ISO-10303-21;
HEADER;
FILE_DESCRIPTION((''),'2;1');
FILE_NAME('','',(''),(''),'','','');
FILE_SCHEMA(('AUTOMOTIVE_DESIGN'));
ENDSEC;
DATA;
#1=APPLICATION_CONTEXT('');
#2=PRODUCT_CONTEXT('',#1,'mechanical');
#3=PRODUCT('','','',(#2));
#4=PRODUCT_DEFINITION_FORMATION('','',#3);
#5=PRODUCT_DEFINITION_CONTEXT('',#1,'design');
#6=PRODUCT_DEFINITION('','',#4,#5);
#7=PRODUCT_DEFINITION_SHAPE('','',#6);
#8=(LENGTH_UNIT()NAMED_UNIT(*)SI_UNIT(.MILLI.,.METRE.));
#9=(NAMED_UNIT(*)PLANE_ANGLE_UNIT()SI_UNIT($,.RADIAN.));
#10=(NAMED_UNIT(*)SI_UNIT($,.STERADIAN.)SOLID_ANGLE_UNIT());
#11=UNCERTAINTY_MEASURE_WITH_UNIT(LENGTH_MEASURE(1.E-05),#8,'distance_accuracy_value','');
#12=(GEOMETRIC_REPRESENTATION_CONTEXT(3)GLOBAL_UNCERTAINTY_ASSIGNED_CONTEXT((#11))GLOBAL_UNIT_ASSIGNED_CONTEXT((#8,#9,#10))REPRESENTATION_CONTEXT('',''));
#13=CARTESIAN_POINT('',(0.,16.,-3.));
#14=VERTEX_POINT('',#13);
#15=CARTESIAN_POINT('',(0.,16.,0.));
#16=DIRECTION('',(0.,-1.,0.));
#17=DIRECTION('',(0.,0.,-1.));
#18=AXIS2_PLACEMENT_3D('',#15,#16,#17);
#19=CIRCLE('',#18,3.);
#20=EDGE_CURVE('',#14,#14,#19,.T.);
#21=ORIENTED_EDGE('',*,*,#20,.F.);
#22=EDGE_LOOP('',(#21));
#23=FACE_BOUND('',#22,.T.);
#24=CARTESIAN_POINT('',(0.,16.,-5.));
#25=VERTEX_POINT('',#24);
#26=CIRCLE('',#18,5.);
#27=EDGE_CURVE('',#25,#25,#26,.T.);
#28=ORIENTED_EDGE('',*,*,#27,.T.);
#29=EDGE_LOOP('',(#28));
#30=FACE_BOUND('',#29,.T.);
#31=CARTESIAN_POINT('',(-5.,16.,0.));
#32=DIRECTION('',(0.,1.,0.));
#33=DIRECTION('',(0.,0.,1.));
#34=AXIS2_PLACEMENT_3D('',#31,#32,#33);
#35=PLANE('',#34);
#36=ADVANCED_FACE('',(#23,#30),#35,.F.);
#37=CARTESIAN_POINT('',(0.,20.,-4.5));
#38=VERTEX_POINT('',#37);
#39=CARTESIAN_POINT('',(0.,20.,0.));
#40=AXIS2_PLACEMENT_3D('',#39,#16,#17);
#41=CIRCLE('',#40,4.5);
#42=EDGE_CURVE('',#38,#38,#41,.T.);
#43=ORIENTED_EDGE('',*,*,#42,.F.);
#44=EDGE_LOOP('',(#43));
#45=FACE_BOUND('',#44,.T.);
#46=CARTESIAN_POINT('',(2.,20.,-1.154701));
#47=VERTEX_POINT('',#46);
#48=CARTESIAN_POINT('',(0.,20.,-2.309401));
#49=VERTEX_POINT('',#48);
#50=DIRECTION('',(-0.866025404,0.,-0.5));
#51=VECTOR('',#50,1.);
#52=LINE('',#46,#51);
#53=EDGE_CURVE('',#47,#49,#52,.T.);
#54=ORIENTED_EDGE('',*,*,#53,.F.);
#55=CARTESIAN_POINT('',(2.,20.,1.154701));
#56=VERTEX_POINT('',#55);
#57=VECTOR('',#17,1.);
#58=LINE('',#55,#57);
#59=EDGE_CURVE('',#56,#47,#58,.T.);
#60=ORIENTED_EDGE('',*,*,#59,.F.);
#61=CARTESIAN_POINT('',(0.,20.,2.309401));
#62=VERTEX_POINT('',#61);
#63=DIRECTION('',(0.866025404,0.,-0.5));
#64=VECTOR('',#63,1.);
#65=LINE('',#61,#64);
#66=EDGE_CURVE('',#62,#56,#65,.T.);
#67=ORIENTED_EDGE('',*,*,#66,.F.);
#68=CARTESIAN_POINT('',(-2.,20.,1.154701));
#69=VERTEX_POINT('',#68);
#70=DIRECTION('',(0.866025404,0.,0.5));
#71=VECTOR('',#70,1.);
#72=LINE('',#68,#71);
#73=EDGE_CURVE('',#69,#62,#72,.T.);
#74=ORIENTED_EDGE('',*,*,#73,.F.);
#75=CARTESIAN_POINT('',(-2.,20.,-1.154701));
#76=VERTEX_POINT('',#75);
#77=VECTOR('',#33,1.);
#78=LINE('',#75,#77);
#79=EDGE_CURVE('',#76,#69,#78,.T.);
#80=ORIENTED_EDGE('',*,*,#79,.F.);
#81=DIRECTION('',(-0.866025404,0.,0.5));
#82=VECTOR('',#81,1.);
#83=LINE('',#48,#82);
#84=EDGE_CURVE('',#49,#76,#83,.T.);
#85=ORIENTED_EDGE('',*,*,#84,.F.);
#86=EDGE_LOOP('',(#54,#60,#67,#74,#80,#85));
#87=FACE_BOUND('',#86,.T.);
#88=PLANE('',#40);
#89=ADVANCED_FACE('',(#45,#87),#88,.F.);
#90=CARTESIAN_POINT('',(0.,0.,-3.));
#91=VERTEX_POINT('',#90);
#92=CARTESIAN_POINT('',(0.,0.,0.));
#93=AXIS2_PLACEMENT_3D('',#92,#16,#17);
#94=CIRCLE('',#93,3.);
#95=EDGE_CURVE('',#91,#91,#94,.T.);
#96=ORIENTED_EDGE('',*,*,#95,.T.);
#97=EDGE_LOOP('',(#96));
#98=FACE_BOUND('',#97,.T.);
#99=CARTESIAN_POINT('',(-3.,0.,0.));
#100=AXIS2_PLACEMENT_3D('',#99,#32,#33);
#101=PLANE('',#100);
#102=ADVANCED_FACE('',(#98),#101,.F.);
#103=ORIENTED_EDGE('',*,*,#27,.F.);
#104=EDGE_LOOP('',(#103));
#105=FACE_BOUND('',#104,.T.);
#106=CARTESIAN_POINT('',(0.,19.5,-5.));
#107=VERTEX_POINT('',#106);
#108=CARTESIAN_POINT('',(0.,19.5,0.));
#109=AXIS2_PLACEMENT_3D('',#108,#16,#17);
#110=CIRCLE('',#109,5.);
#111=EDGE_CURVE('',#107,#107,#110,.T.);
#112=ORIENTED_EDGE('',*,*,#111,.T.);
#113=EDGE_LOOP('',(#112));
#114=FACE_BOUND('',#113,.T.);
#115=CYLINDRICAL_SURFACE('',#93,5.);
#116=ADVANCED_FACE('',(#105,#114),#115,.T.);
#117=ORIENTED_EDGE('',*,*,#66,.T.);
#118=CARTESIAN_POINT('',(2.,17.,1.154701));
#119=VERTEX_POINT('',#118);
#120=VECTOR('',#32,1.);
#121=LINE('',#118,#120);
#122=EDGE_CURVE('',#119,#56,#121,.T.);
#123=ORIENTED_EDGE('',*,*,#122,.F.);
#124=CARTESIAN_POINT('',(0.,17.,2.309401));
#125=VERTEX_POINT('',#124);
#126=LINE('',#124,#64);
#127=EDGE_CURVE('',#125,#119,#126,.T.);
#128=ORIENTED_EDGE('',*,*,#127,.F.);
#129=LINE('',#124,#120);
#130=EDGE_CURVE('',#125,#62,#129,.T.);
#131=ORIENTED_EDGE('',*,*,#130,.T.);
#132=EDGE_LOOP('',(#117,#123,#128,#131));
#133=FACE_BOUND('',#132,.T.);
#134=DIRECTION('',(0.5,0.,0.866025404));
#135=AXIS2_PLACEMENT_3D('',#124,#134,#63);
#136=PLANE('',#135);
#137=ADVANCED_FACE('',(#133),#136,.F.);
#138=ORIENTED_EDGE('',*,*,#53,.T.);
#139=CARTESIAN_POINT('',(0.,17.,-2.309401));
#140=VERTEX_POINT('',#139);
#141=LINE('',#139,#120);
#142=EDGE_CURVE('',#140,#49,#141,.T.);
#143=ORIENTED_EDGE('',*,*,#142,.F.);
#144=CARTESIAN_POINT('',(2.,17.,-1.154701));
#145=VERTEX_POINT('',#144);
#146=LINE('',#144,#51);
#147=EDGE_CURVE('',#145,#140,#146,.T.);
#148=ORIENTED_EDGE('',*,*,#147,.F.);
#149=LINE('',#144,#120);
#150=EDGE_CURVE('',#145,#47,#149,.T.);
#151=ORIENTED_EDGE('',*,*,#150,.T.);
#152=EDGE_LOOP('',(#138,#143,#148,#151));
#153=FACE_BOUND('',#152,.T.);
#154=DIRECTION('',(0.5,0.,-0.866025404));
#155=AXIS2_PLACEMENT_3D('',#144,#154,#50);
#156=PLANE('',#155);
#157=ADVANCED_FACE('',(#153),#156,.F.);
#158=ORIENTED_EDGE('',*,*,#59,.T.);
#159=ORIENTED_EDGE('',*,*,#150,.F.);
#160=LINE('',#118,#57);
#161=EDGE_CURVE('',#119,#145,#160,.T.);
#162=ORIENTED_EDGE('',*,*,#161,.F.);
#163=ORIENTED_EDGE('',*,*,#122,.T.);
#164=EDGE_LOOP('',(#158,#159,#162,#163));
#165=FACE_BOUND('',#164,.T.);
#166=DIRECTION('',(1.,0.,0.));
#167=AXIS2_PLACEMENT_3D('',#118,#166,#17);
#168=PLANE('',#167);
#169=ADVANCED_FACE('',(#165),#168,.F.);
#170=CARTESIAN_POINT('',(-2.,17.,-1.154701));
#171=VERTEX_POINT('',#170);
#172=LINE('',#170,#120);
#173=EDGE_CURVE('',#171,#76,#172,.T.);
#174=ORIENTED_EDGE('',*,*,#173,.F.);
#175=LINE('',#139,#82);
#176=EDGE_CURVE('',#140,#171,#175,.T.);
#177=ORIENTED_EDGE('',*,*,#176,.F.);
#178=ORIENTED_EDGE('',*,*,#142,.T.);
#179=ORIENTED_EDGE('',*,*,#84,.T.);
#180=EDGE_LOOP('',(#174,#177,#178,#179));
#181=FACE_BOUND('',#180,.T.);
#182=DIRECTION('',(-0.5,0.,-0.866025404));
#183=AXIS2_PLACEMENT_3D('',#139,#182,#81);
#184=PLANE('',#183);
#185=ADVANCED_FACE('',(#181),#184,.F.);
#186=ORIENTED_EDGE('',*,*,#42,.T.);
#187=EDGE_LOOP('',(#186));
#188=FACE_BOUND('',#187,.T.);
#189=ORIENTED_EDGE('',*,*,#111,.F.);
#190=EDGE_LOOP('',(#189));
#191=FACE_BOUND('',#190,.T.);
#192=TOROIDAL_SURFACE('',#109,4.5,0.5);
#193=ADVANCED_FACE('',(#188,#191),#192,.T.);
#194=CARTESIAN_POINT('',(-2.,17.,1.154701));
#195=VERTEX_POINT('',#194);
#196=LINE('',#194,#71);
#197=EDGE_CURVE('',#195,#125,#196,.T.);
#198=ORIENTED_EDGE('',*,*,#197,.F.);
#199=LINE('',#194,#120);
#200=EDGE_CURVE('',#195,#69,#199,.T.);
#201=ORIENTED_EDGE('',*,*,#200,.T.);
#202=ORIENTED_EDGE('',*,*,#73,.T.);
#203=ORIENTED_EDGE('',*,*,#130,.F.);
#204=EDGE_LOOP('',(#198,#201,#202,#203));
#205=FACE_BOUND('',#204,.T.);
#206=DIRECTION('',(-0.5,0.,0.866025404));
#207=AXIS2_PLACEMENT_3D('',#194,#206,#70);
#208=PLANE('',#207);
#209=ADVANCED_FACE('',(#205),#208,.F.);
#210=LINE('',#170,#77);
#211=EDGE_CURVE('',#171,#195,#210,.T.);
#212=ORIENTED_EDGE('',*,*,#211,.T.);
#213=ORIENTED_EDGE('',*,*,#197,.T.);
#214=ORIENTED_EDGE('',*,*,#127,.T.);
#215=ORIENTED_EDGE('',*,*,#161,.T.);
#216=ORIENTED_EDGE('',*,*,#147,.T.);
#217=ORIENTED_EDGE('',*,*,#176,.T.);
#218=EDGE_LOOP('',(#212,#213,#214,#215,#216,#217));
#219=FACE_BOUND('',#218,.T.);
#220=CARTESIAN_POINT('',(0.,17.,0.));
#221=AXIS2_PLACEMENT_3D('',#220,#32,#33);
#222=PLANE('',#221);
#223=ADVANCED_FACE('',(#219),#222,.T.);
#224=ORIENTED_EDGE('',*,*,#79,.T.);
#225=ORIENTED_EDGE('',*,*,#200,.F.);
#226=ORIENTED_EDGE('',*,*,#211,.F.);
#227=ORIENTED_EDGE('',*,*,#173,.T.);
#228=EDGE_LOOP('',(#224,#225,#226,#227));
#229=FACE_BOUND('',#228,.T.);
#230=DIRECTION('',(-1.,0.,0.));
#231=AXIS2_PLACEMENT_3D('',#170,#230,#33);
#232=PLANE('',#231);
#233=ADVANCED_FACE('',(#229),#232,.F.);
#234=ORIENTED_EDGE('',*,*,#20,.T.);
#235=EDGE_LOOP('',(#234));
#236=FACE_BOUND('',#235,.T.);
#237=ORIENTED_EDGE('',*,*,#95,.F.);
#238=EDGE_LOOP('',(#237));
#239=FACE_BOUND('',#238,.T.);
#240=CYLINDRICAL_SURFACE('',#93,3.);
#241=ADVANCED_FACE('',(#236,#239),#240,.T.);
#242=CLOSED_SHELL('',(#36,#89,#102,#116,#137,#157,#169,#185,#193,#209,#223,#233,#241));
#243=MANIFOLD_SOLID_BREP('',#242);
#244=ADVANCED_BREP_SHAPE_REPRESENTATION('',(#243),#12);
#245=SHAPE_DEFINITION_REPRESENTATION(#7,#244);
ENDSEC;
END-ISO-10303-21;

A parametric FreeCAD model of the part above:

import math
import FreeCAD as App
import Part
import Sketcher
from FreeCAD import Vector
Q = App.Units.Quantity


def add_polygon(sketch, points):
    """Adds a closed chain of lines whose ends are joined by coincident constraints."""
    first, n = sketch.GeometryCount, len(points)
    for a, b in zip(points, points[1:] + points[:1]):
        sketch.addGeometry(Part.LineSegment(App.Vector(*a, 0), App.Vector(*b, 0)), False)
    for i in range(n):
        sketch.addConstraint(Sketcher.Constraint("Coincident", first + i, 2, first + (i + 1) % n, 1))

doc = App.newDocument("Part")
body = doc.addObject("PartDesign::Body", "Body")

sketch1 = doc.addObject("Sketcher::SketchObject", "Sketch")
body.addObject(sketch1)
sketch1.AttachmentSupport = (doc.XY_Plane, [""])
sketch1.MapMode = "FlatFace"
sketch1.addGeometry([
    Part.LineSegment(Vector(0, 20, 0), Vector(-4.5, 20, 0)),
    Part.ArcOfCircle(Part.Circle(Vector(-4.5, 19.5, 0), Vector(0, 0, 1), 0.5), math.radians(90), math.radians(180)),
    Part.LineSegment(Vector(-5, 19.5, 0), Vector(-5, 16, 0)),
    Part.LineSegment(Vector(-5, 16, 0), Vector(-3, 16, 0)),
    Part.LineSegment(Vector(-3, 16, 0), Vector(-3, 0, 0)),
    Part.LineSegment(Vector(-3, 0, 0), Vector(0, 0, 0)),
    Part.LineSegment(Vector(0, 0, 0), Vector(0, 20, 0)),
], False)
sketch1.addConstraint([
    Sketcher.Constraint("Tangent", 0, 2, 1, 1),
    Sketcher.Constraint("Tangent", 1, 2, 2, 1),
    Sketcher.Constraint("Coincident", 2, 2, 3, 1),
    Sketcher.Constraint("Coincident", 3, 2, 4, 1),
    Sketcher.Constraint("Coincident", 4, 2, 5, 1),
    Sketcher.Constraint("Coincident", 5, 2, 6, 1),
    Sketcher.Constraint("Coincident", 6, 2, 0, 1),
    Sketcher.Constraint("Horizontal", 0),
    Sketcher.Constraint("Vertical", 2),
    Sketcher.Constraint("Horizontal", 3),
    Sketcher.Constraint("Vertical", 4),
    Sketcher.Constraint("Horizontal", 5),
    Sketcher.Constraint("Vertical", 6),
    Sketcher.Constraint("Coincident", 5, 2, -1, 1),
    Sketcher.Constraint("Radius", 1, 0.5),
    Sketcher.Constraint("DistanceX", 3, 1, 3, 2, 2.0),
    Sketcher.Constraint("DistanceX", 5, 1, 5, 2, 3.0),
    Sketcher.Constraint("DistanceY", 4, 2, 4, 1, 16.0),
    Sketcher.Constraint("DistanceY", 6, 1, 6, 2, 20.0),
])
revolution = doc.addObject("PartDesign::Revolution", "Revolution")
body.addObject(revolution)
revolution.Profile = sketch1
revolution.ReferenceAxis = (sketch1, ["V_Axis"])
revolution.Angle = 360

sketch2 = doc.addObject("Sketcher::SketchObject", "Sketch001")
body.addObject(sketch2)
sketch2.AttachmentSupport = (doc.XZ_Plane, [""])
sketch2.MapMode = "FlatFace"
sketch2.AttachmentOffset = App.Placement(Vector(0, 0, -20), App.Rotation())
add_polygon(sketch2, [(0, -2.3), (-2, -1.2), (-2, 1.2), (0, 2.3), (2, 1.2), (2, -1.2)])
sketch2.addConstraint([
    Sketcher.Constraint("Vertical", 1),
    Sketcher.Constraint("Vertical", 4),
    Sketcher.Constraint("Symmetric", 0, 2, 3, 2, -1, 1),
    Sketcher.Constraint("Symmetric", 2, 2, 5, 2, -1, 1),
    Sketcher.Constraint("PointOnObject", 2, 2, -2),
    Sketcher.Constraint("Parallel", 2, 5),
    Sketcher.Constraint("Horizontal", 1, 2, 3, 2),
    Sketcher.Constraint("Angle", 0, Q("150 deg")),
    Sketcher.Constraint("DistanceX", 0, 2, -1, 1, 2.0),
    Sketcher.Constraint("DistanceY", 1, 1, 1, 2, 2.309401),
])
pocket1 = doc.addObject("PartDesign::Pocket", "Pocket")
body.addObject(pocket1)
pocket1.Profile = sketch2
pocket1.Length = 3
pocket1.Reversed = True

doc.recompute()
